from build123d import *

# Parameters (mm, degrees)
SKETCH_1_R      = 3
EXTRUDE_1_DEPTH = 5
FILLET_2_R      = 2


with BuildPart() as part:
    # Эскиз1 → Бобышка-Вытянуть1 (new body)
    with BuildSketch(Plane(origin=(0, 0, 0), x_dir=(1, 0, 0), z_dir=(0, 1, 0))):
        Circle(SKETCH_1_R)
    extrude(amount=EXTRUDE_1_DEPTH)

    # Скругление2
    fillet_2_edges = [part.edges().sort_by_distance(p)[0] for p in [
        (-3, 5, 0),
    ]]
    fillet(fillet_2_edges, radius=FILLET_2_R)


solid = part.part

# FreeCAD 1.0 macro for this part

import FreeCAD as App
import Part
import Sketcher
from FreeCAD import Vector


def edges_at(feature, points):
    """Names of the edges that pass closest to the given points."""
    edges = feature.Shape.Edges
    near = lambda p: min(range(len(edges)), key=lambda i: edges[i].distToShape(Part.Vertex(*p))[0])
    return sorted({f"Edge{near(p) + 1}" for p in points})

doc = App.newDocument("Part")
body = doc.addObject("PartDesign::Body", "Body")

# Sketch on XZ plane
sketch1 = doc.addObject("Sketcher::SketchObject", "Sketch")
body.addObject(sketch1)
sketch1.AttachmentSupport = (doc.XZ_Plane, [""])
sketch1.MapMode = "FlatFace"
sketch1.addGeometry(Part.Circle(Vector(0, 0, 0), Vector(0, 0, 1), 3), False)
sketch1.addConstraint([
    Sketcher.Constraint("Coincident", 0, 3, -1, 1),
    Sketcher.Constraint("Diameter", 0, 6.0),
])
pad1 = doc.addObject("PartDesign::Pad", "Pad")
body.addObject(pad1)
pad1.Profile = sketch1
pad1.Length = 5
pad1.Reversed = True
doc.recompute()

fillet = doc.addObject("PartDesign::Fillet", "Fillet")
body.addObject(fillet)
fillet.Base = (pad1, edges_at(pad1, [(-3, 5, 0)]))
fillet.Radius = 2

doc.recompute()
